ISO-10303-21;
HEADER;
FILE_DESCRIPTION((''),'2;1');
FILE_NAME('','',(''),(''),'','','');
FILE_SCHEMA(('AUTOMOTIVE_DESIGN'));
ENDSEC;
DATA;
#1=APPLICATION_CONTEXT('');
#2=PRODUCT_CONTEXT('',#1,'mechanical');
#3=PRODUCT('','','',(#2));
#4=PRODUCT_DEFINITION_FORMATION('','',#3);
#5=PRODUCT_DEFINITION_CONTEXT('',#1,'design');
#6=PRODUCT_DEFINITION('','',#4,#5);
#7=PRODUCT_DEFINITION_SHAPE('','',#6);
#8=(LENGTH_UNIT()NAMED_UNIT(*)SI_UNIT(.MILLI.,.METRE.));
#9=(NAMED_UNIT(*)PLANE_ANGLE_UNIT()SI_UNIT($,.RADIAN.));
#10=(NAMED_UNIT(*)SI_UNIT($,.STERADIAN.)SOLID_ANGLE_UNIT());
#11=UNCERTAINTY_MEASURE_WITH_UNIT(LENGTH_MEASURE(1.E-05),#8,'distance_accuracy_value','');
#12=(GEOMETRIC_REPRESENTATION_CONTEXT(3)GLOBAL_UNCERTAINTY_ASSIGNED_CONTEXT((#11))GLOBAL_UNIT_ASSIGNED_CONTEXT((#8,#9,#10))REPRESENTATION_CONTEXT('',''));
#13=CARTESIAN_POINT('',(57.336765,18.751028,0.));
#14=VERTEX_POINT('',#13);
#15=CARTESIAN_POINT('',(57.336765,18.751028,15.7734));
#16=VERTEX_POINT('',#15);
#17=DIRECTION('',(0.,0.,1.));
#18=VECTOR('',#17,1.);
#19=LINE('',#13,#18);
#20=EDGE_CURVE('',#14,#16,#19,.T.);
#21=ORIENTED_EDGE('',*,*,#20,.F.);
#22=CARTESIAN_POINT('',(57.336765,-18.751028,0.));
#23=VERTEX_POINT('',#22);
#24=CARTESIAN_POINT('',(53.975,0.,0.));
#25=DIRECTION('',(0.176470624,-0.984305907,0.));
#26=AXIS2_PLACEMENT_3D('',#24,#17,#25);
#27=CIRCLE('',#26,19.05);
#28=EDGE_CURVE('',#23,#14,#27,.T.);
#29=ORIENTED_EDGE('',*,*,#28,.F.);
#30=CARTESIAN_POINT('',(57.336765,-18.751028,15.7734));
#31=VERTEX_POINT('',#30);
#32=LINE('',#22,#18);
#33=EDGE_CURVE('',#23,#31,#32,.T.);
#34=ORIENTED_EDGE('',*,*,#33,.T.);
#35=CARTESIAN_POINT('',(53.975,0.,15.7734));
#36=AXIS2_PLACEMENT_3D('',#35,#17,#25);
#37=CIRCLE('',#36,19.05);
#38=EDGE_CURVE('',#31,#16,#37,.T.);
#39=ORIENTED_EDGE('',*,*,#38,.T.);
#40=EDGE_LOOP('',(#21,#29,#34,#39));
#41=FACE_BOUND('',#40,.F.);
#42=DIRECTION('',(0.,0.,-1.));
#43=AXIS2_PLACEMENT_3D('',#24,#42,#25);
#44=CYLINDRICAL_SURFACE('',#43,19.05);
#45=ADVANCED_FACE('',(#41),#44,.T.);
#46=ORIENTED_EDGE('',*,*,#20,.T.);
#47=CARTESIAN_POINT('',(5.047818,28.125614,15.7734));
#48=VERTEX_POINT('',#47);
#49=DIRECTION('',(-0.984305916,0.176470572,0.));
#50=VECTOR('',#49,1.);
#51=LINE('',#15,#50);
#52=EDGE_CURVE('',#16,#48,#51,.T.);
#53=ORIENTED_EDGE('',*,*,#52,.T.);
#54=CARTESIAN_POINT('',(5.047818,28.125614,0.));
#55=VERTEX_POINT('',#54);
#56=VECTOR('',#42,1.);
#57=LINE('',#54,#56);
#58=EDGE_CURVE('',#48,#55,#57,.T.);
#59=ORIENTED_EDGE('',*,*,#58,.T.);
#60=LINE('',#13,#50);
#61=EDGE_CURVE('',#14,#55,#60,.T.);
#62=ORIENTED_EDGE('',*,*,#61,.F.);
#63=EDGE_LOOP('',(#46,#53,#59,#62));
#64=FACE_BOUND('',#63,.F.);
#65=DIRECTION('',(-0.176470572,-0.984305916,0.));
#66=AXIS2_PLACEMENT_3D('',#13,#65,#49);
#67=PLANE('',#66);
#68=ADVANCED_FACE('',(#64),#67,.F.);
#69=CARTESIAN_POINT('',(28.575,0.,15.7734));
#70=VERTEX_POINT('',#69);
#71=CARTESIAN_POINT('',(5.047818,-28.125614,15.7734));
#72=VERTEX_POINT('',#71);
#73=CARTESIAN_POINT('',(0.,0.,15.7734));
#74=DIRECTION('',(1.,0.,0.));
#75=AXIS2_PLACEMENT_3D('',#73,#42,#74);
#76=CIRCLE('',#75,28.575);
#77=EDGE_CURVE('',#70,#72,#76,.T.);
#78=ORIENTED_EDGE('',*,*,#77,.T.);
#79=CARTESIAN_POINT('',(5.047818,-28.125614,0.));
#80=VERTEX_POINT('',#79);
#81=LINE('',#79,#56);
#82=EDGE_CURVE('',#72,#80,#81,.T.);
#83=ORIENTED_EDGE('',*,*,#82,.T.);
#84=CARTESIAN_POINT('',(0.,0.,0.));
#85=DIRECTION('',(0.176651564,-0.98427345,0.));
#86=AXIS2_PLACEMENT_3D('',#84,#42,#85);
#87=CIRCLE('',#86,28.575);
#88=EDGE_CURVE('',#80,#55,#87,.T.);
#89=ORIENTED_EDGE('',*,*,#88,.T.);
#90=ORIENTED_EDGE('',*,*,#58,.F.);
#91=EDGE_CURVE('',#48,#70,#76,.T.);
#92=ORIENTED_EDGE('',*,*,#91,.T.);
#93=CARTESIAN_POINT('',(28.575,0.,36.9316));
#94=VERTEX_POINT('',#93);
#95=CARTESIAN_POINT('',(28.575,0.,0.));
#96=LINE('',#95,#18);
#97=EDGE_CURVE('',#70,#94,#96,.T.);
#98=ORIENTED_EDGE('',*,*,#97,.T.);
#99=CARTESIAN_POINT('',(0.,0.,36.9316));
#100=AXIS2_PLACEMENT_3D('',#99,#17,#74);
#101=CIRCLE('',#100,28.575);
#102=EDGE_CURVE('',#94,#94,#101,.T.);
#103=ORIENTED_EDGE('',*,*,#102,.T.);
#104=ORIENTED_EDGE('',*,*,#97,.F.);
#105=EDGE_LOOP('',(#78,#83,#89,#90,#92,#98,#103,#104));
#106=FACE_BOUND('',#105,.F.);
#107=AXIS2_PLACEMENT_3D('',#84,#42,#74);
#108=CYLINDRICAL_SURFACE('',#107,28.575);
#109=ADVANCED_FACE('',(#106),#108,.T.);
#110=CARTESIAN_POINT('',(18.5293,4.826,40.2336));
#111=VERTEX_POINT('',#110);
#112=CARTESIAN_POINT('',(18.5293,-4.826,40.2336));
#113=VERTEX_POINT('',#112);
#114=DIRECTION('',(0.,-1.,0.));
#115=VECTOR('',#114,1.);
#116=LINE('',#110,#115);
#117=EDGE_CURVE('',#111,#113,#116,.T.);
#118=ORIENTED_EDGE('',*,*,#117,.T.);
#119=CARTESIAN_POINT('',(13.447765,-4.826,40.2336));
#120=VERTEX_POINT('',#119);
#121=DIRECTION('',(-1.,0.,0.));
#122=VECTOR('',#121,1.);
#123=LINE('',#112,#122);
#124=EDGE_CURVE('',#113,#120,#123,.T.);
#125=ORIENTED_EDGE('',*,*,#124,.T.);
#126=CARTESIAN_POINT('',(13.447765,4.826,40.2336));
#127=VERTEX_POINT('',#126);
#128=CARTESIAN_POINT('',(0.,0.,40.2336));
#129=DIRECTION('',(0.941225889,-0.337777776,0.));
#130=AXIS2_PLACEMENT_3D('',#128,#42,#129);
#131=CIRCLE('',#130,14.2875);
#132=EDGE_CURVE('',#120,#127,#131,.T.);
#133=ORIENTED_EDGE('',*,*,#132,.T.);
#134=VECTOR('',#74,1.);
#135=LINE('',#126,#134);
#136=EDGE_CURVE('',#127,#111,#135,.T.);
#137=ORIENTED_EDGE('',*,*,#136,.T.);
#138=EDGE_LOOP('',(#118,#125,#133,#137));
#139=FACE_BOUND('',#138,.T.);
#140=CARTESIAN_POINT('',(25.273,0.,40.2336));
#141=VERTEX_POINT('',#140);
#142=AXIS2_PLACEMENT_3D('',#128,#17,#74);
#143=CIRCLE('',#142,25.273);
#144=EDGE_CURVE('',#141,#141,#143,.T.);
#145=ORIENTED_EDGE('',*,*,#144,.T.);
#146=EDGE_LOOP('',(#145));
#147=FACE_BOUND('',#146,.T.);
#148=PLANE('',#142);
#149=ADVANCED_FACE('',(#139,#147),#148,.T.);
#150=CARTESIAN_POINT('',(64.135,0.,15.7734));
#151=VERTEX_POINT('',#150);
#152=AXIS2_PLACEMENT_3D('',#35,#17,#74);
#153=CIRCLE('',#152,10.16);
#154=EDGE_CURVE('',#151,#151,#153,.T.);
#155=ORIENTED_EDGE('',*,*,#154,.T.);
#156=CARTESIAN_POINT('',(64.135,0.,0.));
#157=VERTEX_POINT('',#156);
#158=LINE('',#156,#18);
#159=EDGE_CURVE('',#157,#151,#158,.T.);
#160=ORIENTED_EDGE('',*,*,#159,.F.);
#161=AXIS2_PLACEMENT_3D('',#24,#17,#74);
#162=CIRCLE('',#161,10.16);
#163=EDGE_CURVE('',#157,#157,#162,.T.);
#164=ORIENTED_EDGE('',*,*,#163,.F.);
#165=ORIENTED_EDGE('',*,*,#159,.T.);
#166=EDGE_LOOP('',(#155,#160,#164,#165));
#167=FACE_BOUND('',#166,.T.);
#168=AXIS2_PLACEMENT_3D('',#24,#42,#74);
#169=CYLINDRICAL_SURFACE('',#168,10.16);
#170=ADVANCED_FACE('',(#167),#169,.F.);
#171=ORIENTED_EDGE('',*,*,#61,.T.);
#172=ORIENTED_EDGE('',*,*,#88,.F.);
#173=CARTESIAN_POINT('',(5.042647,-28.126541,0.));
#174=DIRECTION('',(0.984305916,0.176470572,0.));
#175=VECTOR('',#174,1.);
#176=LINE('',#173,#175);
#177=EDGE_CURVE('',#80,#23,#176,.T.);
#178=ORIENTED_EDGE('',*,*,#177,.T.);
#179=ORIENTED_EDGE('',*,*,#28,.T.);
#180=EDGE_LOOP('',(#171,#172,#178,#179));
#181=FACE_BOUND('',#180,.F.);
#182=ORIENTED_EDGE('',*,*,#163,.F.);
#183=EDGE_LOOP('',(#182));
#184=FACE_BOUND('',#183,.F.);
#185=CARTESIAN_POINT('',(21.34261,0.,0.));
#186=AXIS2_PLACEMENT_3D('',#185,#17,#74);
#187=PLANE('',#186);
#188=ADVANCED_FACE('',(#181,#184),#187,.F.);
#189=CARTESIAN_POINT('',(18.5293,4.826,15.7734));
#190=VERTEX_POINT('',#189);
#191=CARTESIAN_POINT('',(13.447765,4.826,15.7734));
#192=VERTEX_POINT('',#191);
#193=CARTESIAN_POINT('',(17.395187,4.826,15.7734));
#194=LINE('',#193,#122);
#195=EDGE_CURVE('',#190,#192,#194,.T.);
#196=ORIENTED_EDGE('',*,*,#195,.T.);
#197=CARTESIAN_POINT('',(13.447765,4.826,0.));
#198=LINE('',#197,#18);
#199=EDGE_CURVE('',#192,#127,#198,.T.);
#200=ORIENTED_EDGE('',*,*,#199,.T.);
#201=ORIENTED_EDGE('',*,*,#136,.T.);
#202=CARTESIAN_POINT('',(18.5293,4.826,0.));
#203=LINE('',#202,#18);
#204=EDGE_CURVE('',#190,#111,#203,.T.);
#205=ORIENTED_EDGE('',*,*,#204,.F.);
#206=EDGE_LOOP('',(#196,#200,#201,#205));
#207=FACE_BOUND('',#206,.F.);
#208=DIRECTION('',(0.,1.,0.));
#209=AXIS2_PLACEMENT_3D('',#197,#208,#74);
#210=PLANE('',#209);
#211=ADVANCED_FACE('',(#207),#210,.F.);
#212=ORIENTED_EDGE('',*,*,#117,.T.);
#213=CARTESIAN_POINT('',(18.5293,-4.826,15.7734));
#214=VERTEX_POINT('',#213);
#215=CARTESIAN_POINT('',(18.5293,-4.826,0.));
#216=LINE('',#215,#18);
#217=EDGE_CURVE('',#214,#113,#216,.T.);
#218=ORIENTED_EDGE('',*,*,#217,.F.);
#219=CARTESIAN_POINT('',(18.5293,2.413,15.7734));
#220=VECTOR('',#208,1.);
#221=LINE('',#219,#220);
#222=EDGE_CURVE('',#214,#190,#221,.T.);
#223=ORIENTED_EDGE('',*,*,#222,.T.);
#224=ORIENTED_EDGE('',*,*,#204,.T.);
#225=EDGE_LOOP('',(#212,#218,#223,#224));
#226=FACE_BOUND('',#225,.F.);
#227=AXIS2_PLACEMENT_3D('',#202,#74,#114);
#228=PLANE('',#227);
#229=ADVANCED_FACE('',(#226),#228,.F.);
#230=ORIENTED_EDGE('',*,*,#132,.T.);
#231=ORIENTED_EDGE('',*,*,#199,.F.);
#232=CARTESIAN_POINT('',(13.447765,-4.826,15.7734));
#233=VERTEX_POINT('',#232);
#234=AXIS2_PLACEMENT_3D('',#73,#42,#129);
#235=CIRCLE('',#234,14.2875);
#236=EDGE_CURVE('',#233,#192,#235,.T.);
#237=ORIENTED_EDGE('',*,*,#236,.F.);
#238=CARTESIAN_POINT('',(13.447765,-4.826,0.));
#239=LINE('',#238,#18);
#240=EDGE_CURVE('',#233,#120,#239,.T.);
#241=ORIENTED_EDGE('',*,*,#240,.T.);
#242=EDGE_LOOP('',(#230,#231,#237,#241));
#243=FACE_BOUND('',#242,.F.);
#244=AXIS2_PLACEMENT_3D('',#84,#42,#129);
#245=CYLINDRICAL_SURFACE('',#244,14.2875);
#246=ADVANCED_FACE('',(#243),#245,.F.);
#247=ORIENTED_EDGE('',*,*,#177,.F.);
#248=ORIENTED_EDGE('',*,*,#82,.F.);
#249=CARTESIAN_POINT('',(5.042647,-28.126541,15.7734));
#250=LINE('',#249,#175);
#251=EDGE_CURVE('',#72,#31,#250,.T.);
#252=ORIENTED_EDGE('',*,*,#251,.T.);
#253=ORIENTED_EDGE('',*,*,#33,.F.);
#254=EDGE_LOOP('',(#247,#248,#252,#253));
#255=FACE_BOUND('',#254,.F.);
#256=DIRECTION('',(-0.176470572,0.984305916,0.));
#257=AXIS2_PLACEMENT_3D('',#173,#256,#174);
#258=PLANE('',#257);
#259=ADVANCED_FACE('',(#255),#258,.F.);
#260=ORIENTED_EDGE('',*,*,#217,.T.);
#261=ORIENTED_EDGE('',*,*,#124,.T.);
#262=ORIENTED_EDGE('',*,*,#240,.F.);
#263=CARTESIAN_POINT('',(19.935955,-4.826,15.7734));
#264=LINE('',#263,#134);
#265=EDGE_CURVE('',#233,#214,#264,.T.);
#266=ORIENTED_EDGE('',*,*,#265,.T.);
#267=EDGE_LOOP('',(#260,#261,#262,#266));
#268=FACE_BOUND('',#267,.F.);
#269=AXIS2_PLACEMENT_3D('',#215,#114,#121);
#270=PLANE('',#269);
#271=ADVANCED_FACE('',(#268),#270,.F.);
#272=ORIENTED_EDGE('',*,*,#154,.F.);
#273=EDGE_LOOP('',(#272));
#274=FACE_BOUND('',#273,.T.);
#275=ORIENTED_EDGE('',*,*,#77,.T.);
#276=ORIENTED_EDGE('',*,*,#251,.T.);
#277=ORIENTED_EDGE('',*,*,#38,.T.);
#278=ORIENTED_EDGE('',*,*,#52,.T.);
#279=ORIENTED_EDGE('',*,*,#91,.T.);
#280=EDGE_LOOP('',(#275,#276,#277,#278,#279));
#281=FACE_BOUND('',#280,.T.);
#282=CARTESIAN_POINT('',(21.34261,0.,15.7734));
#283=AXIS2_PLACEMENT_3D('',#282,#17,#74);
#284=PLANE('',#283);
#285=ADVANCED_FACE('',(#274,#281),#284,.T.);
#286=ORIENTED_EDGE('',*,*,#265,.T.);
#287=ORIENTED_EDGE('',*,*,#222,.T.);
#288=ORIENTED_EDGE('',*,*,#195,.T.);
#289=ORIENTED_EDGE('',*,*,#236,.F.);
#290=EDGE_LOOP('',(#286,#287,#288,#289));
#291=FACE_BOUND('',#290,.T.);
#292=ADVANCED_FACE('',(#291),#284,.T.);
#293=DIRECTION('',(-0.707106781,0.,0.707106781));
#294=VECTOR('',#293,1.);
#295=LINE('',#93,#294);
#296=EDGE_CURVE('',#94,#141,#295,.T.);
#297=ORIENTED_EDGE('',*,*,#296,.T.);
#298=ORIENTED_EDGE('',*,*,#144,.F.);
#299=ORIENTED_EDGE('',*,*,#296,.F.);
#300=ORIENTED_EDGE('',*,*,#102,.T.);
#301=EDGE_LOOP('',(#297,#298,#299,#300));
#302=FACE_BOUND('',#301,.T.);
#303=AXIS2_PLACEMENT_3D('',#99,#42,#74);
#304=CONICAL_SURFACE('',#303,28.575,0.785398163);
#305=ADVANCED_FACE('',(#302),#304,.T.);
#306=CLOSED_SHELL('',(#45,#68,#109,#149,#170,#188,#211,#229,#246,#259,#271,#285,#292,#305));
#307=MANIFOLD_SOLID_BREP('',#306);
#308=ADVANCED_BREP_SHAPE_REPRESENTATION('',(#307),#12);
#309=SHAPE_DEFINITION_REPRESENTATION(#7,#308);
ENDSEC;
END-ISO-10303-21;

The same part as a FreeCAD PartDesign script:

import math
import FreeCAD as App
import Part
import Sketcher
from FreeCAD import Vector
Q = App.Units.Quantity


def edges_at(feature, points):
    """Names of the edges that pass closest to the given points."""
    edges = feature.Shape.Edges
    near = lambda p: min(range(len(edges)), key=lambda i: edges[i].distToShape(Part.Vertex(*p))[0])
    return sorted({f"Edge{near(p) + 1}" for p in points})

doc = App.newDocument("Part")
body = doc.addObject("PartDesign::Body", "Body")

# Sketch on XY plane
sketch1 = body.newObject("Sketcher::SketchObject", "Sketch")
sketch1.AttachmentSupport = (doc.getObject("XY_Plane"), [""])
sketch1.MapMode = "FlatFace"
sketch1.addGeometry([
    Part.LineSegment(Vector(57.336765, 18.751028, 0), Vector(5.042647, 28.126541, 0)),  # 0
    Part.ArcOfCircle(Part.Circle(Vector(0, 0, 0), Vector(0, 0, 1), 28.575), math.radians(79.835751), math.radians(280.164249)),  # 1
    Part.LineSegment(Vector(5.042647, -28.126541, 0), Vector(57.336765, -18.751028, 0)),  # 2
    Part.ArcOfCircle(Part.Circle(Vector(53.975, 0, 0), Vector(0, 0, 1), 19.05), math.radians(-79.835749), math.radians(79.835749)),  # 3
    Part.Circle(Vector(53.975, 0, 0), Vector(0, 0, 1), 10.16),  # 4
], False)
sketch1.addConstraint([
    Sketcher.Constraint("Tangent", 0, 2, 1, 1),
    Sketcher.Constraint("Tangent", 1, 2, 2, 1),
    Sketcher.Constraint("Tangent", 2, 2, 3, 1),
    Sketcher.Constraint("Tangent", 3, 2, 0, 1),
    Sketcher.Constraint("Coincident", 1, 3, -1, 1),
    Sketcher.Constraint("Coincident", 4, 3, 3, 3),
    Sketcher.Constraint("PointOnObject", 3, 3, -1),
    Sketcher.Constraint("Diameter", 4, Q("0.8 in")),
    Sketcher.Constraint("Radius", 3, Q("0.75 in")),
    Sketcher.Constraint("Radius", 1, Q("1.125 in")),
    Sketcher.Constraint("DistanceX", -1, 1, 3, 3, Q("2.125 in")),
])
pad1 = body.newObject("PartDesign::Pad", "Pad")
pad1.Profile = sketch1
pad1.Length = Q("0.621 in")

# Sketch on XY plane
sketch2 = body.newObject("Sketcher::SketchObject", "Sketch001")
sketch2.AttachmentSupport = (doc.getObject("XY_Plane"), [""])
sketch2.MapMode = "FlatFace"
sketch2.addGeometry([
    Part.Circle(Vector(0, 0, 0), Vector(0, 0, 1), 28.575),  # 0
    Part.LineSegment(Vector(18.5293, -4.826, 0), Vector(13.447765, -4.826, 0)),  # 1
    Part.ArcOfCircle(Part.Circle(Vector(0, 0, 0), Vector(0, 0, 1), 14.2875), math.radians(19.741542), math.radians(340.258458)),  # 2
    Part.LineSegment(Vector(13.447765, 4.826, 0), Vector(18.5293, 4.826, 0)),  # 3
    Part.LineSegment(Vector(18.5293, 4.826, 0), Vector(18.5293, -4.826, 0)),  # 4
], False)
sketch2.addConstraint([
    Sketcher.Constraint("Coincident", 1, 2, 2, 2),
    Sketcher.Constraint("Coincident", 2, 1, 3, 1),
    Sketcher.Constraint("Coincident", 3, 2, 4, 1),
    Sketcher.Constraint("Coincident", 4, 2, 1, 1),
    Sketcher.Constraint("Horizontal", 1),
    Sketcher.Constraint("Horizontal", 3),
    Sketcher.Constraint("Vertical", 4),
    Sketcher.Constraint("Coincident", 0, 3, -1, 1),
    Sketcher.Constraint("Coincident", 2, 3, -1, 1),
    Sketcher.Constraint("Vertical", 1, 2, 2, 1),
    Sketcher.Constraint("Diameter", 0, Q("2.25 in")),
    Sketcher.Constraint("Radius", 2, Q("0.5625 in")),
    Sketcher.Constraint("DistanceY", 4, 2, 4, 1, Q("0.38 in")),
    Sketcher.Constraint("DistanceX", -1, 1, 3, 2, Q("0.7295 in")),
])
pad2 = body.newObject("PartDesign::Pad", "Pad001")
pad2.Profile = sketch2
pad2.Length = Q("1.584 in")
doc.recompute()

chamfer = body.newObject("PartDesign::Chamfer", "Chamfer")
chamfer.Base = (pad2, edges_at(pad2, [(-28.575, 0, 40.234)]))
chamfer.Size = Q("0.13 in")

doc.recompute()
